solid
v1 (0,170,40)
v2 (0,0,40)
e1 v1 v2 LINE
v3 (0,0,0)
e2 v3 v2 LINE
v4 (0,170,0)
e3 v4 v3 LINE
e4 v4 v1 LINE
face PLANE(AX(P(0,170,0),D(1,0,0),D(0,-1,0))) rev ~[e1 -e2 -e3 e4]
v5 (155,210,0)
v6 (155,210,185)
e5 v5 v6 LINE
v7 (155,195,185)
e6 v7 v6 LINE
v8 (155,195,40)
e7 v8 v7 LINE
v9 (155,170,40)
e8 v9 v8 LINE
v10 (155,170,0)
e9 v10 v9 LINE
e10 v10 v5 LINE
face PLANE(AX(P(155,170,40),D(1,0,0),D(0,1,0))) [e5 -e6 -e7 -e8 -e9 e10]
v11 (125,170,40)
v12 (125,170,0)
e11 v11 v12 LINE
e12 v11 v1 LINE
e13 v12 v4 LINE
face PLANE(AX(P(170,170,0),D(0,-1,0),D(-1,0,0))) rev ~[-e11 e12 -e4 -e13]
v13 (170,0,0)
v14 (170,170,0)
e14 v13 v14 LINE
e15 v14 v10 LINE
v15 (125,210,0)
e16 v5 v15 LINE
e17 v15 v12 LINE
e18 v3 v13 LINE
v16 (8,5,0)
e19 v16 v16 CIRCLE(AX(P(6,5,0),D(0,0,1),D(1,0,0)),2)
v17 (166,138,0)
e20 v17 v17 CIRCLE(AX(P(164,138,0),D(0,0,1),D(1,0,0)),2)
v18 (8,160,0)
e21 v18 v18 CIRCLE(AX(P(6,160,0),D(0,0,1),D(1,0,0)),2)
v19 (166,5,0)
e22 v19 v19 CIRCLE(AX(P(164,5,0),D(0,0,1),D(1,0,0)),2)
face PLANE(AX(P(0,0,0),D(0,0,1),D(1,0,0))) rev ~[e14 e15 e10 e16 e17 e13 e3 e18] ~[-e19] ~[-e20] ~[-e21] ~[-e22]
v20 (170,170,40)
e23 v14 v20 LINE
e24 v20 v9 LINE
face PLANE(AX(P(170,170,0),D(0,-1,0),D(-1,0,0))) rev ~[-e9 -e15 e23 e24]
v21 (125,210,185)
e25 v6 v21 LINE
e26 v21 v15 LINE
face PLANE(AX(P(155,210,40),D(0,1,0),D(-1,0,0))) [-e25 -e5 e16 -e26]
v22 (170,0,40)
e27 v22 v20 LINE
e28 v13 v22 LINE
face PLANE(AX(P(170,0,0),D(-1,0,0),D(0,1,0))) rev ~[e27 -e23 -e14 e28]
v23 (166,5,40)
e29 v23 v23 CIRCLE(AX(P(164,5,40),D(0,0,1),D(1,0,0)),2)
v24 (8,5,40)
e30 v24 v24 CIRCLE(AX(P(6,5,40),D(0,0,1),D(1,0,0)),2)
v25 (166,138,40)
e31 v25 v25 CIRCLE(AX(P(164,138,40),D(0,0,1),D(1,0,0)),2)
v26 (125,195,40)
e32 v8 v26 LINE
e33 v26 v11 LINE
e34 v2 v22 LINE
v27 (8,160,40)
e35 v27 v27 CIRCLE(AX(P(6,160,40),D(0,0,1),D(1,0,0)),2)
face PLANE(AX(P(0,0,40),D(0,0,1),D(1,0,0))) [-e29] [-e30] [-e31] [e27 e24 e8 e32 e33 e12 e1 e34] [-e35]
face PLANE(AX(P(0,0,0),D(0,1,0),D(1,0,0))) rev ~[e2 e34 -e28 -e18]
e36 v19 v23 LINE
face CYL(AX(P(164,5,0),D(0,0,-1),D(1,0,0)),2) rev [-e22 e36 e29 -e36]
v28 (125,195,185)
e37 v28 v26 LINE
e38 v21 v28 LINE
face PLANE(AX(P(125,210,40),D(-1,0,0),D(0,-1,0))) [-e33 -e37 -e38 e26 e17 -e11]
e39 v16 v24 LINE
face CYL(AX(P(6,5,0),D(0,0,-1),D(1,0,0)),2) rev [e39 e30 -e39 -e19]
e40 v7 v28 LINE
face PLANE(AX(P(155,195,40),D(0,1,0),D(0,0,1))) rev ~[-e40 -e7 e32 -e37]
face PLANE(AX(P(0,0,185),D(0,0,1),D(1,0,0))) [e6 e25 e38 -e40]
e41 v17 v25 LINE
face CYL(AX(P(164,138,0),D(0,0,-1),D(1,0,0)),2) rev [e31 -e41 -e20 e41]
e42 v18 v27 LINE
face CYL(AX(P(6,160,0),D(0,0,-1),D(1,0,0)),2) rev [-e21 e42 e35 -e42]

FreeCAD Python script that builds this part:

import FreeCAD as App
import Part
import Sketcher


def add_polygon(sketch, points):
    """Adds a closed chain of lines whose ends are joined by coincident constraints."""
    first, n = sketch.GeometryCount, len(points)
    for a, b in zip(points, points[1:] + points[:1]):
        sketch.addGeometry(Part.LineSegment(App.Vector(*a, 0), App.Vector(*b, 0)), False)
    for i in range(n):
        sketch.addConstraint(Sketcher.Constraint("Coincident", first + i, 2, first + (i + 1) % n, 1))

doc = App.newDocument("Part")
params = doc.addObject("Spreadsheet::Sheet", "Params")
for row, (alias, value) in enumerate([
    ("sketch1_diameter", "4 mm"),
    ("sketch1_width", "170 mm"),
    ("pad1_length", "40 mm"),
    ("sketch2_width", "30 mm"),
    ("sketch2_height", "40 mm"),
    ("pad2_length", "40 mm"),
    ("pad2_length2", "145 mm"),
    ("sketch3_width", "25 mm"),
    ("sketch3_height", "145 mm"),
], start=1):
    params.set(f"A{row}", alias)
    params.set(f"B{row}", "=" + value)
    params.setAlias(f"B{row}", alias)

body = doc.addObject("PartDesign::Body", "Body")

sketch1 = body.newObject("Sketcher::SketchObject", "Sketch")
sketch1.AttachmentSupport = (doc.getObject("XY_Plane"), [""])
sketch1.MapMode = "FlatFace"
add_polygon(sketch1, [(0, 170), (0, 0), (170, 0), (170, 170)])
sketch1.addGeometry(Part.Circle(App.Vector(6, 5, 0), App.Vector(0, 0, 1), 2), False)
sketch1.addGeometry(Part.Circle(App.Vector(164, 5, 0), App.Vector(0, 0, 1), 2), False)
sketch1.addGeometry(Part.Circle(App.Vector(6, 160, 0), App.Vector(0, 0, 1), 2), False)
sketch1.addGeometry(Part.Circle(App.Vector(164, 138, 0), App.Vector(0, 0, 1), 2), False)
sketch1.addConstraint([
    Sketcher.Constraint("Vertical", 0),
    Sketcher.Constraint("Horizontal", 1),
    Sketcher.Constraint("Vertical", 2),
    Sketcher.Constraint("Horizontal", 3),
    Sketcher.Constraint("Coincident", 0, 2, -1, 1),
    Sketcher.Constraint("Equal", 4, 5),
    Sketcher.Constraint("Equal", 5, 6),
    Sketcher.Constraint("Equal", 6, 7),
    Sketcher.Constraint("Horizontal", 4, 3, 5, 3),
    Sketcher.Constraint("Vertical", 4, 3, 6, 3),
    Sketcher.Constraint("Vertical", 5, 3, 7, 3),
    Sketcher.Constraint("Equal", 3, 0),
    Sketcher.Constraint("Diameter", 4, 4.0),
    Sketcher.Constraint("DistanceX", 1, 1, 1, 2, 170.0),
    Sketcher.Constraint("DistanceX", 4, 3, 5, 3, 158.0),
    Sketcher.Constraint("DistanceY", 4, 3, 6, 3, 155.0),
    Sketcher.Constraint("DistanceY", 5, 3, 7, 3, 133.0),
    Sketcher.Constraint("DistanceY", 7, 3, 2, 2, 32.0),
    Sketcher.Constraint("DistanceX", -1, 1, 4, 3, 6.0),
])
sketch1.setExpression("Constraints[16]", "Params.sketch1_diameter")
sketch1.setExpression("Constraints[17]", "Params.sketch1_width")
pad1 = body.newObject("PartDesign::Pad", "Pad")
pad1.Profile = sketch1
pad1.setExpression("Length", "Params.pad1_length")

sketch2 = body.newObject("Sketcher::SketchObject", "Sketch001")
sketch2.AttachmentSupport = (doc.getObject("XY_Plane"), [""])
sketch2.MapMode = "FlatFace"
sketch2.AttachmentOffset = App.Placement(App.Vector(0, 0, 40), App.Rotation())
add_polygon(sketch2, [(125, 170), (155, 170), (155, 210), (125, 210)])
sketch2.addConstraint([
    Sketcher.Constraint("Horizontal", 0),
    Sketcher.Constraint("Vertical", 1),
    Sketcher.Constraint("Horizontal", 2),
    Sketcher.Constraint("Vertical", 3),
    Sketcher.Constraint("DistanceX", 0, 1, 0, 2, 30.0),
    Sketcher.Constraint("DistanceY", 1, 1, 1, 2, 40.0),
    Sketcher.Constraint("DistanceX", -1, 1, 0, 2, 155.0),
    Sketcher.Constraint("DistanceY", -1, 1, 0, 2, 170.0),
])
sketch2.setExpression("Constraints[8]", "Params.sketch2_width")
sketch2.setExpression("Constraints[9]", "Params.sketch2_height")
pad2 = body.newObject("PartDesign::Pad", "Pad001")
pad2.Profile = sketch2
pad2.Type = "TwoLengths"
pad2.setExpression("Length", "Params.pad2_length")
pad2.setExpression("Length2", "Params.pad2_length2")
pad2.Reversed = True

sketch3 = body.newObject("Sketcher::SketchObject", "Sketch002")
sketch3.AttachmentSupport = (doc.getObject("YZ_Plane"), [""])
sketch3.MapMode = "FlatFace"
sketch3.AttachmentOffset = App.Placement(App.Vector(0, 0, 155), App.Rotation())
add_polygon(sketch3, [(195, 185), (170, 185), (170, 40), (195, 40)])
sketch3.addConstraint([
    Sketcher.Constraint("Horizontal", 0),
    Sketcher.Constraint("Vertical", 1),
    Sketcher.Constraint("Horizontal", 2),
    Sketcher.Constraint("Vertical", 3),
    Sketcher.Constraint("DistanceX", 0, 2, 0, 1, 25.0),
    Sketcher.Constraint("DistanceY", 1, 2, 1, 1, 145.0),
    Sketcher.Constraint("DistanceX", -1, 1, 0, 2, 170.0),
    Sketcher.Constraint("DistanceY", -1, 1, 0, 2, 185.0),
])
sketch3.setExpression("Constraints[8]", "Params.sketch3_width")
sketch3.setExpression("Constraints[9]", "Params.sketch3_height")
pocket1 = body.newObject("PartDesign::Pocket", "Pocket")
pocket1.Profile = sketch3
pocket1.Type = "ThroughAll"

doc.recompute()
